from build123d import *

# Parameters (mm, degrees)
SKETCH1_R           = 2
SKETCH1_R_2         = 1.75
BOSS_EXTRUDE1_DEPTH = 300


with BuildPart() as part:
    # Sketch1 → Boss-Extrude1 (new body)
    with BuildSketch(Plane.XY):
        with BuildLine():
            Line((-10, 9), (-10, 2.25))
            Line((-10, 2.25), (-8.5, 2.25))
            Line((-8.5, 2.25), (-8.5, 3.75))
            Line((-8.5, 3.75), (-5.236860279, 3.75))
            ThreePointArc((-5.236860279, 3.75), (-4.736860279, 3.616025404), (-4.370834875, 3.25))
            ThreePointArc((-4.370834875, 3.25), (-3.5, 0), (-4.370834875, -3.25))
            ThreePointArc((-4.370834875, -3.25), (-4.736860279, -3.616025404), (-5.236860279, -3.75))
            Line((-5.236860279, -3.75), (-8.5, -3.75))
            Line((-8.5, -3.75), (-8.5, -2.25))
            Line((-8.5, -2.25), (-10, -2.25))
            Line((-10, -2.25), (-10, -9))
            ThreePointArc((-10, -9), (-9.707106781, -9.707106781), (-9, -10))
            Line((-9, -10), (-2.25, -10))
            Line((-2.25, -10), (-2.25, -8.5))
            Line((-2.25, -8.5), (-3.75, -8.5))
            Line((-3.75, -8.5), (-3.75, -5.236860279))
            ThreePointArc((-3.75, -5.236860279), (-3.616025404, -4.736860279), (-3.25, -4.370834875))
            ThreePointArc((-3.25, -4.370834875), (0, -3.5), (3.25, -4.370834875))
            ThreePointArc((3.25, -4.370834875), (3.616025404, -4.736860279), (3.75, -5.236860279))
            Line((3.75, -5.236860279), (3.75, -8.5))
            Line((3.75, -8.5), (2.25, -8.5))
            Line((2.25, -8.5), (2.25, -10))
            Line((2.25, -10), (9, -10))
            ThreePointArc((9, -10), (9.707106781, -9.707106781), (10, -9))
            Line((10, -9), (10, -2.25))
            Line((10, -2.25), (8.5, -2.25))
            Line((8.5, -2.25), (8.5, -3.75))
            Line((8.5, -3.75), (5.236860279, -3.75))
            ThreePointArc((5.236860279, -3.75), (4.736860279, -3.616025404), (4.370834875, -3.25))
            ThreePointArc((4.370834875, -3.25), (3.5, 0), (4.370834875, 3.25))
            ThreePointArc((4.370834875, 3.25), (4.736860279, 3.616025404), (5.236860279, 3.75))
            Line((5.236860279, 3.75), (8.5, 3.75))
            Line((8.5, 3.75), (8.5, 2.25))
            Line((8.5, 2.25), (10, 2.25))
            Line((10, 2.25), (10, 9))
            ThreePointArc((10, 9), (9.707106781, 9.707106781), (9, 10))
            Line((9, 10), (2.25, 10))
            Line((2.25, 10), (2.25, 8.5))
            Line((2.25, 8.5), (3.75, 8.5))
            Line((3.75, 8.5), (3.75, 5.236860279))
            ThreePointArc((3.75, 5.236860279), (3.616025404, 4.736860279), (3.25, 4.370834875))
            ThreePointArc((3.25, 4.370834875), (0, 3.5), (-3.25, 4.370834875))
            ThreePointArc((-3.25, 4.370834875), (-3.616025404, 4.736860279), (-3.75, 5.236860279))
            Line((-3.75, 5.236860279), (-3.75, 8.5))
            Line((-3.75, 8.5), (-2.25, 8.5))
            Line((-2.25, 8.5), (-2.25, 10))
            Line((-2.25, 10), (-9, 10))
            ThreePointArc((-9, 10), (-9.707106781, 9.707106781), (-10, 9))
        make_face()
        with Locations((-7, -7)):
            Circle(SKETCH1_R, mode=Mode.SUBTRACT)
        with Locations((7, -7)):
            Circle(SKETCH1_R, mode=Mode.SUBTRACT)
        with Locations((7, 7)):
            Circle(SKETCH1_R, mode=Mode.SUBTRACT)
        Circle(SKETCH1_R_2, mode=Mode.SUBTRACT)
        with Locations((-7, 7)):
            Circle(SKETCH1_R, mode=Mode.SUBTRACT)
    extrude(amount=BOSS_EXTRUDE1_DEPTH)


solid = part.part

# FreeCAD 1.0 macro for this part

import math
import FreeCAD as App
import Part
import Sketcher

V = App.Vector
Q = App.Units.Quantity

doc = App.newDocument("Part")
body = doc.addObject("PartDesign::Body", "Body")

sketch1 = body.newObject("Sketcher::SketchObject", "Sketch")
sketch1.AttachmentSupport = (doc.getObject("XY_Plane"), [""])
sketch1.MapMode = "FlatFace"
sketch1.addGeometry(Part.LineSegment(V(-10, 9, 0), V(-10, 2.2, 0)), False)
sketch1.addGeometry(Part.LineSegment(V(-10, 2.2, 0), V(-8.5, 2.2, 0)), False)
sketch1.addGeometry(Part.LineSegment(V(-8.5, 2.2, 0), V(-8.5, 3.8, 0)), False)
sketch1.addGeometry(Part.LineSegment(V(-8.5, 3.8, 0), V(-5.2, 3.8, 0)), False)
sketch1.addGeometry(Part.ArcOfCircle(Part.Circle(V(-5.2, 2.8, 0), V(0, 0, 1), 1), math.radians(30), math.radians(90)), False)
sketch1.addGeometry(Part.ArcOfCircle(Part.Circle(V(-10, 0, 0), V(0, 0, 1), 6.5), math.radians(-30), math.radians(30)), False)
sketch1.addGeometry(Part.ArcOfCircle(Part.Circle(V(-5.2, -2.8, 0), V(0, 0, 1), 1), math.radians(-90), math.radians(-30)), False)
sketch1.addGeometry(Part.LineSegment(V(-5.2, -3.8, 0), V(-8.5, -3.8, 0)), False)
sketch1.addGeometry(Part.LineSegment(V(-8.5, -3.8, 0), V(-8.5, -2.2, 0)), False)
sketch1.addGeometry(Part.LineSegment(V(-8.5, -2.2, 0), V(-10, -2.2, 0)), False)
sketch1.addGeometry(Part.LineSegment(V(-10, -2.2, 0), V(-10, -9, 0)), False)
sketch1.addGeometry(Part.ArcOfCircle(Part.Circle(V(-9, -9, 0), V(0, 0, 1), 1), math.radians(-180), math.radians(-90)), False)
sketch1.addGeometry(Part.LineSegment(V(-9, -10, 0), V(-2.2, -10, 0)), False)
sketch1.addGeometry(Part.LineSegment(V(-2.2, -10, 0), V(-2.2, -8.5, 0)), False)
sketch1.addGeometry(Part.LineSegment(V(-2.2, -8.5, 0), V(-3.8, -8.5, 0)), False)
sketch1.addGeometry(Part.LineSegment(V(-3.8, -8.5, 0), V(-3.8, -5.2, 0)), False)
sketch1.addGeometry(Part.ArcOfCircle(Part.Circle(V(-2.8, -5.2, 0), V(0, 0, 1), 1), math.radians(120), math.radians(180)), False)
sketch1.addGeometry(Part.ArcOfCircle(Part.Circle(V(0, -10, 0), V(0, 0, 1), 6.5), math.radians(60), math.radians(120)), False)
sketch1.addGeometry(Part.ArcOfCircle(Part.Circle(V(2.8, -5.2, 0), V(0, 0, 1), 1), math.radians(0), math.radians(60)), False)
sketch1.addGeometry(Part.LineSegment(V(3.8, -5.2, 0), V(3.8, -8.5, 0)), False)
sketch1.addGeometry(Part.LineSegment(V(3.8, -8.5, 0), V(2.2, -8.5, 0)), False)
sketch1.addGeometry(Part.LineSegment(V(2.2, -8.5, 0), V(2.2, -10, 0)), False)
sketch1.addGeometry(Part.LineSegment(V(2.2, -10, 0), V(9, -10, 0)), False)
sketch1.addGeometry(Part.ArcOfCircle(Part.Circle(V(9, -9, 0), V(0, 0, 1), 1), math.radians(-90), math.radians(0)), False)
sketch1.addGeometry(Part.LineSegment(V(10, -9, 0), V(10, -2.2, 0)), False)
sketch1.addGeometry(Part.LineSegment(V(10, -2.2, 0), V(8.5, -2.2, 0)), False)
sketch1.addGeometry(Part.LineSegment(V(8.5, -2.2, 0), V(8.5, -3.8, 0)), False)
sketch1.addGeometry(Part.LineSegment(V(8.5, -3.8, 0), V(5.2, -3.8, 0)), False)
sketch1.addGeometry(Part.ArcOfCircle(Part.Circle(V(5.2, -2.8, 0), V(0, 0, 1), 1), math.radians(-150), math.radians(-90)), False)
sketch1.addGeometry(Part.ArcOfCircle(Part.Circle(V(10, 0, 0), V(0, 0, 1), 6.5), math.radians(150), math.radians(210)), False)
sketch1.addGeometry(Part.ArcOfCircle(Part.Circle(V(5.2, 2.8, 0), V(0, 0, 1), 1), math.radians(90), math.radians(150)), False)
sketch1.addGeometry(Part.LineSegment(V(5.2, 3.8, 0), V(8.5, 3.8, 0)), False)
sketch1.addGeometry(Part.LineSegment(V(8.5, 3.8, 0), V(8.5, 2.2, 0)), False)
sketch1.addGeometry(Part.LineSegment(V(8.5, 2.2, 0), V(10, 2.2, 0)), False)
sketch1.addGeometry(Part.LineSegment(V(10, 2.2, 0), V(10, 9, 0)), False)
sketch1.addGeometry(Part.ArcOfCircle(Part.Circle(V(9, 9, 0), V(0, 0, 1), 1), math.radians(0), math.radians(90)), False)
sketch1.addGeometry(Part.LineSegment(V(9, 10, 0), V(2.2, 10, 0)), False)
sketch1.addGeometry(Part.LineSegment(V(2.2, 10, 0), V(2.2, 8.5, 0)), False)
sketch1.addGeometry(Part.LineSegment(V(2.2, 8.5, 0), V(3.8, 8.5, 0)), False)
sketch1.addGeometry(Part.LineSegment(V(3.8, 8.5, 0), V(3.8, 5.2, 0)), False)
sketch1.addGeometry(Part.ArcOfCircle(Part.Circle(V(2.8, 5.2, 0), V(0, 0, 1), 1), math.radians(-60), math.radians(0)), False)
sketch1.addGeometry(Part.ArcOfCircle(Part.Circle(V(0, 10, 0), V(0, 0, 1), 6.5), math.radians(-120), math.radians(-60)), False)
sketch1.addGeometry(Part.ArcOfCircle(Part.Circle(V(-2.8, 5.2, 0), V(0, 0, 1), 1), math.radians(180), math.radians(240)), False)
sketch1.addGeometry(Part.LineSegment(V(-3.8, 5.2, 0), V(-3.8, 8.5, 0)), False)
sketch1.addGeometry(Part.LineSegment(V(-3.8, 8.5, 0), V(-2.2, 8.5, 0)), False)
sketch1.addGeometry(Part.LineSegment(V(-2.2, 8.5, 0), V(-2.2, 10, 0)), False)
sketch1.addGeometry(Part.LineSegment(V(-2.2, 10, 0), V(-9, 10, 0)), False)
sketch1.addGeometry(Part.ArcOfCircle(Part.Circle(V(-9, 9, 0), V(0, 0, 1), 1), math.radians(90), math.radians(180)), False)
sketch1.addGeometry(Part.Circle(V(-7, -7, 0), V(0, 0, 1), 2), False)
sketch1.addGeometry(Part.Circle(V(7, -7, 0), V(0, 0, 1), 2), False)
sketch1.addGeometry(Part.Circle(V(-7, 7, 0), V(0, 0, 1), 2), False)
sketch1.addGeometry(Part.Circle(V(0, 0, 0), V(0, 0, 1), 1.8), False)
sketch1.addGeometry(Part.Circle(V(7, 7, 0), V(0, 0, 1), 2), False)
sketch1.addConstraint(Sketcher.Constraint("Coincident", 0, 2, 1, 1))
sketch1.addConstraint(Sketcher.Constraint("Coincident", 1, 2, 2, 1))
sketch1.addConstraint(Sketcher.Constraint("Coincident", 2, 2, 3, 1))
sketch1.addConstraint(Sketcher.Constraint("Tangent", 3, 2, 4, 2))
sketch1.addConstraint(Sketcher.Constraint("Tangent", 4, 1, 5, 2))
sketch1.addConstraint(Sketcher.Constraint("Tangent", 5, 1, 6, 2))
sketch1.addConstraint(Sketcher.Constraint("Tangent", 6, 1, 7, 1))
sketch1.addConstraint(Sketcher.Constraint("Coincident", 7, 2, 8, 1))
sketch1.addConstraint(Sketcher.Constraint("Coincident", 8, 2, 9, 1))
sketch1.addConstraint(Sketcher.Constraint("Coincident", 9, 2, 10, 1))
sketch1.addConstraint(Sketcher.Constraint("Tangent", 10, 2, 11, 1))
sketch1.addConstraint(Sketcher.Constraint("Tangent", 11, 2, 12, 1))
sketch1.addConstraint(Sketcher.Constraint("Coincident", 12, 2, 13, 1))
sketch1.addConstraint(Sketcher.Constraint("Coincident", 13, 2, 14, 1))
sketch1.addConstraint(Sketcher.Constraint("Coincident", 14, 2, 15, 1))
sketch1.addConstraint(Sketcher.Constraint("Tangent", 15, 2, 16, 2))
sketch1.addConstraint(Sketcher.Constraint("Tangent", 16, 1, 17, 2))
sketch1.addConstraint(Sketcher.Constraint("Tangent", 17, 1, 18, 2))
sketch1.addConstraint(Sketcher.Constraint("Tangent", 18, 1, 19, 1))
sketch1.addConstraint(Sketcher.Constraint("Coincident", 19, 2, 20, 1))
sketch1.addConstraint(Sketcher.Constraint("Coincident", 20, 2, 21, 1))
sketch1.addConstraint(Sketcher.Constraint("Coincident", 21, 2, 22, 1))
sketch1.addConstraint(Sketcher.Constraint("Tangent", 22, 2, 23, 1))
sketch1.addConstraint(Sketcher.Constraint("Tangent", 23, 2, 24, 1))
sketch1.addConstraint(Sketcher.Constraint("Coincident", 24, 2, 25, 1))
sketch1.addConstraint(Sketcher.Constraint("Coincident", 25, 2, 26, 1))
sketch1.addConstraint(Sketcher.Constraint("Coincident", 26, 2, 27, 1))
sketch1.addConstraint(Sketcher.Constraint("Tangent", 27, 2, 28, 2))
sketch1.addConstraint(Sketcher.Constraint("Tangent", 28, 1, 29, 2))
sketch1.addConstraint(Sketcher.Constraint("Tangent", 29, 1, 30, 2))
sketch1.addConstraint(Sketcher.Constraint("Tangent", 30, 1, 31, 1))
sketch1.addConstraint(Sketcher.Constraint("Coincident", 31, 2, 32, 1))
sketch1.addConstraint(Sketcher.Constraint("Coincident", 32, 2, 33, 1))
sketch1.addConstraint(Sketcher.Constraint("Coincident", 33, 2, 34, 1))
sketch1.addConstraint(Sketcher.Constraint("Tangent", 34, 2, 35, 1))
sketch1.addConstraint(Sketcher.Constraint("Tangent", 35, 2, 36, 1))
sketch1.addConstraint(Sketcher.Constraint("Coincident", 36, 2, 37, 1))
sketch1.addConstraint(Sketcher.Constraint("Coincident", 37, 2, 38, 1))
sketch1.addConstraint(Sketcher.Constraint("Coincident", 38, 2, 39, 1))
sketch1.addConstraint(Sketcher.Constraint("Tangent", 39, 2, 40, 2))
sketch1.addConstraint(Sketcher.Constraint("Tangent", 40, 1, 41, 2))
sketch1.addConstraint(Sketcher.Constraint("Tangent", 41, 1, 42, 2))
sketch1.addConstraint(Sketcher.Constraint("Tangent", 42, 1, 43, 1))
sketch1.addConstraint(Sketcher.Constraint("Coincident", 43, 2, 44, 1))
sketch1.addConstraint(Sketcher.Constraint("Coincident", 44, 2, 45, 1))
sketch1.addConstraint(Sketcher.Constraint("Coincident", 45, 2, 46, 1))
sketch1.addConstraint(Sketcher.Constraint("Tangent", 46, 2, 47, 1))
sketch1.addConstraint(Sketcher.Constraint("Tangent", 47, 2, 0, 1))
sketch1.addConstraint(Sketcher.Constraint("Vertical", 0))
sketch1.addConstraint(Sketcher.Constraint("Horizontal", 1))
sketch1.addConstraint(Sketcher.Constraint("Vertical", 2))
sketch1.addConstraint(Sketcher.Constraint("Horizontal", 3))
sketch1.addConstraint(Sketcher.Constraint("Horizontal", 7))
sketch1.addConstraint(Sketcher.Constraint("Vertical", 8))
sketch1.addConstraint(Sketcher.Constraint("Horizontal", 9))
sketch1.addConstraint(Sketcher.Constraint("Vertical", 10))
sketch1.addConstraint(Sketcher.Constraint("Horizontal", 12))
sketch1.addConstraint(Sketcher.Constraint("Vertical", 13))
sketch1.addConstraint(Sketcher.Constraint("Horizontal", 14))
sketch1.addConstraint(Sketcher.Constraint("Vertical", 15))
sketch1.addConstraint(Sketcher.Constraint("Vertical", 19))
sketch1.addConstraint(Sketcher.Constraint("Horizontal", 20))
sketch1.addConstraint(Sketcher.Constraint("Vertical", 21))
sketch1.addConstraint(Sketcher.Constraint("Horizontal", 22))
sketch1.addConstraint(Sketcher.Constraint("Vertical", 24))
sketch1.addConstraint(Sketcher.Constraint("Horizontal", 25))
sketch1.addConstraint(Sketcher.Constraint("Vertical", 26))
sketch1.addConstraint(Sketcher.Constraint("Horizontal", 27))
sketch1.addConstraint(Sketcher.Constraint("Horizontal", 31))
sketch1.addConstraint(Sketcher.Constraint("Vertical", 32))
sketch1.addConstraint(Sketcher.Constraint("Horizontal", 33))
sketch1.addConstraint(Sketcher.Constraint("Vertical", 34))
sketch1.addConstraint(Sketcher.Constraint("Horizontal", 36))
sketch1.addConstraint(Sketcher.Constraint("Vertical", 37))
sketch1.addConstraint(Sketcher.Constraint("Horizontal", 38))
sketch1.addConstraint(Sketcher.Constraint("Vertical", 39))
sketch1.addConstraint(Sketcher.Constraint("Vertical", 43))
sketch1.addConstraint(Sketcher.Constraint("Horizontal", 44))
sketch1.addConstraint(Sketcher.Constraint("Vertical", 45))
sketch1.addConstraint(Sketcher.Constraint("Horizontal", 46))
sketch1.addConstraint(Sketcher.Constraint("Coincident", 51, 3, -1, 1))
sketch1.addConstraint(Sketcher.Constraint("Equal", 4, 6))
sketch1.addConstraint(Sketcher.Constraint("Equal", 6, 11))
sketch1.addConstraint(Sketcher.Constraint("Equal", 11, 16))
sketch1.addConstraint(Sketcher.Constraint("Equal", 5, 17))
sketch1.addConstraint(Sketcher.Constraint("Equal", 16, 18))
sketch1.addConstraint(Sketcher.Constraint("Equal", 18, 23))
sketch1.addConstraint(Sketcher.Constraint("Equal", 23, 28))
sketch1.addConstraint(Sketcher.Constraint("Equal", 17, 29))
sketch1.addConstraint(Sketcher.Constraint("Equal", 28, 30))
sketch1.addConstraint(Sketcher.Constraint("Equal", 30, 35))
sketch1.addConstraint(Sketcher.Constraint("Equal", 35, 40))
sketch1.addConstraint(Sketcher.Constraint("Equal", 29, 41))
sketch1.addConstraint(Sketcher.Constraint("Equal", 40, 42))
sketch1.addConstraint(Sketcher.Constraint("Equal", 42, 47))
sketch1.addConstraint(Sketcher.Constraint("Equal", 48, 49))
sketch1.addConstraint(Sketcher.Constraint("Equal", 49, 50))
sketch1.addConstraint(Sketcher.Constraint("Equal", 50, 52))
sketch1.addConstraint(Sketcher.Constraint("Symmetric", 4, 3, 28, 3, -1, 1))
sketch1.addConstraint(Sketcher.Constraint("Symmetric", 6, 3, 30, 3, -1, 1))
sketch1.addConstraint(Sketcher.Constraint("Symmetric", 11, 3, 35, 3, -1, 1))
sketch1.addConstraint(Sketcher.Constraint("Symmetric", 16, 3, 40, 3, -1, 1))
sketch1.addConstraint(Sketcher.Constraint("Symmetric", 18, 3, 42, 3, -1, 1))
sketch1.addConstraint(Sketcher.Constraint("Symmetric", 23, 3, 47, 3, -1, 1))
sketch1.addConstraint(Sketcher.Constraint("Symmetric", 49, 3, 50, 3, -1, 1))
sketch1.addConstraint(Sketcher.Constraint("Symmetric", 48, 3, 52, 3, -1, 1))
sketch1.addConstraint(Sketcher.Constraint("Symmetric", 1, 2, 25, 2, -1, 1))
sketch1.addConstraint(Sketcher.Constraint("Symmetric", 8, 2, 32, 2, -1, 1))
sketch1.addConstraint(Sketcher.Constraint("Symmetric", 13, 2, 37, 2, -1, 1))
sketch1.addConstraint(Sketcher.Constraint("Symmetric", 20, 2, 44, 2, -1, 1))
sketch1.addConstraint(Sketcher.Constraint("Symmetric", 16, 3, 18, 3, -2))
sketch1.addConstraint(Sketcher.Constraint("Symmetric", 11, 3, 23, 3, -2))
sketch1.addConstraint(Sketcher.Constraint("Symmetric", 6, 3, 28, 3, -2))
sketch1.addConstraint(Sketcher.Constraint("Symmetric", 48, 3, 49, 3, -2))
sketch1.addConstraint(Sketcher.Constraint("Symmetric", 13, 2, 20, 2, -2))
sketch1.addConstraint(Sketcher.Constraint("Symmetric", 8, 2, 25, 2, -2))
sketch1.addConstraint(Sketcher.Constraint("Horizontal", 17, 3, 11, 2))
sketch1.addConstraint(Sketcher.Constraint("Vertical", 5, 3, 0, 2))
sketch1.addConstraint(Sketcher.Constraint("Equal", 9, 14))
sketch1.addConstraint(Sketcher.Constraint("Equal", 46, 0))
sketch1.addConstraint(Sketcher.Constraint("Equal", 44, 2))
sketch1.addConstraint(Sketcher.Constraint("Equal", 8, 13))
sketch1.addConstraint(Sketcher.Constraint("Equal", 31, 15))
sketch1.addConstraint(Sketcher.Constraint("Diameter", 48, Q("4 mm")))
sketch1.addConstraint(Sketcher.Constraint("Radius", 4, Q("1 mm")))
sketch1.addConstraint(Sketcher.Constraint("Diameter", 51, Q("3.5 mm")))
sketch1.addConstraint(Sketcher.Constraint("Radius", 5, Q("6.5 mm")))
sketch1.addConstraint(Sketcher.Constraint("DistanceX", 1, 1, 1, 2, Q("1.5 mm")))
sketch1.addConstraint(Sketcher.Constraint("DistanceX", 5, 3, -1, 1, Q("10 mm")))
sketch1.addConstraint(Sketcher.Constraint("DistanceX", 48, 3, -1, 1, Q("7 mm")))
sketch1.addConstraint(Sketcher.Constraint("DistanceY", 48, 3, -1, 1, Q("7 mm")))
sketch1.addConstraint(Sketcher.Constraint("DistanceX", 12, 1, 12, 2, Q("6.75 mm")))
pad1 = body.newObject("PartDesign::Pad", "Pad")
pad1.Profile = sketch1
pad1.Length = 300

doc.recompute()
